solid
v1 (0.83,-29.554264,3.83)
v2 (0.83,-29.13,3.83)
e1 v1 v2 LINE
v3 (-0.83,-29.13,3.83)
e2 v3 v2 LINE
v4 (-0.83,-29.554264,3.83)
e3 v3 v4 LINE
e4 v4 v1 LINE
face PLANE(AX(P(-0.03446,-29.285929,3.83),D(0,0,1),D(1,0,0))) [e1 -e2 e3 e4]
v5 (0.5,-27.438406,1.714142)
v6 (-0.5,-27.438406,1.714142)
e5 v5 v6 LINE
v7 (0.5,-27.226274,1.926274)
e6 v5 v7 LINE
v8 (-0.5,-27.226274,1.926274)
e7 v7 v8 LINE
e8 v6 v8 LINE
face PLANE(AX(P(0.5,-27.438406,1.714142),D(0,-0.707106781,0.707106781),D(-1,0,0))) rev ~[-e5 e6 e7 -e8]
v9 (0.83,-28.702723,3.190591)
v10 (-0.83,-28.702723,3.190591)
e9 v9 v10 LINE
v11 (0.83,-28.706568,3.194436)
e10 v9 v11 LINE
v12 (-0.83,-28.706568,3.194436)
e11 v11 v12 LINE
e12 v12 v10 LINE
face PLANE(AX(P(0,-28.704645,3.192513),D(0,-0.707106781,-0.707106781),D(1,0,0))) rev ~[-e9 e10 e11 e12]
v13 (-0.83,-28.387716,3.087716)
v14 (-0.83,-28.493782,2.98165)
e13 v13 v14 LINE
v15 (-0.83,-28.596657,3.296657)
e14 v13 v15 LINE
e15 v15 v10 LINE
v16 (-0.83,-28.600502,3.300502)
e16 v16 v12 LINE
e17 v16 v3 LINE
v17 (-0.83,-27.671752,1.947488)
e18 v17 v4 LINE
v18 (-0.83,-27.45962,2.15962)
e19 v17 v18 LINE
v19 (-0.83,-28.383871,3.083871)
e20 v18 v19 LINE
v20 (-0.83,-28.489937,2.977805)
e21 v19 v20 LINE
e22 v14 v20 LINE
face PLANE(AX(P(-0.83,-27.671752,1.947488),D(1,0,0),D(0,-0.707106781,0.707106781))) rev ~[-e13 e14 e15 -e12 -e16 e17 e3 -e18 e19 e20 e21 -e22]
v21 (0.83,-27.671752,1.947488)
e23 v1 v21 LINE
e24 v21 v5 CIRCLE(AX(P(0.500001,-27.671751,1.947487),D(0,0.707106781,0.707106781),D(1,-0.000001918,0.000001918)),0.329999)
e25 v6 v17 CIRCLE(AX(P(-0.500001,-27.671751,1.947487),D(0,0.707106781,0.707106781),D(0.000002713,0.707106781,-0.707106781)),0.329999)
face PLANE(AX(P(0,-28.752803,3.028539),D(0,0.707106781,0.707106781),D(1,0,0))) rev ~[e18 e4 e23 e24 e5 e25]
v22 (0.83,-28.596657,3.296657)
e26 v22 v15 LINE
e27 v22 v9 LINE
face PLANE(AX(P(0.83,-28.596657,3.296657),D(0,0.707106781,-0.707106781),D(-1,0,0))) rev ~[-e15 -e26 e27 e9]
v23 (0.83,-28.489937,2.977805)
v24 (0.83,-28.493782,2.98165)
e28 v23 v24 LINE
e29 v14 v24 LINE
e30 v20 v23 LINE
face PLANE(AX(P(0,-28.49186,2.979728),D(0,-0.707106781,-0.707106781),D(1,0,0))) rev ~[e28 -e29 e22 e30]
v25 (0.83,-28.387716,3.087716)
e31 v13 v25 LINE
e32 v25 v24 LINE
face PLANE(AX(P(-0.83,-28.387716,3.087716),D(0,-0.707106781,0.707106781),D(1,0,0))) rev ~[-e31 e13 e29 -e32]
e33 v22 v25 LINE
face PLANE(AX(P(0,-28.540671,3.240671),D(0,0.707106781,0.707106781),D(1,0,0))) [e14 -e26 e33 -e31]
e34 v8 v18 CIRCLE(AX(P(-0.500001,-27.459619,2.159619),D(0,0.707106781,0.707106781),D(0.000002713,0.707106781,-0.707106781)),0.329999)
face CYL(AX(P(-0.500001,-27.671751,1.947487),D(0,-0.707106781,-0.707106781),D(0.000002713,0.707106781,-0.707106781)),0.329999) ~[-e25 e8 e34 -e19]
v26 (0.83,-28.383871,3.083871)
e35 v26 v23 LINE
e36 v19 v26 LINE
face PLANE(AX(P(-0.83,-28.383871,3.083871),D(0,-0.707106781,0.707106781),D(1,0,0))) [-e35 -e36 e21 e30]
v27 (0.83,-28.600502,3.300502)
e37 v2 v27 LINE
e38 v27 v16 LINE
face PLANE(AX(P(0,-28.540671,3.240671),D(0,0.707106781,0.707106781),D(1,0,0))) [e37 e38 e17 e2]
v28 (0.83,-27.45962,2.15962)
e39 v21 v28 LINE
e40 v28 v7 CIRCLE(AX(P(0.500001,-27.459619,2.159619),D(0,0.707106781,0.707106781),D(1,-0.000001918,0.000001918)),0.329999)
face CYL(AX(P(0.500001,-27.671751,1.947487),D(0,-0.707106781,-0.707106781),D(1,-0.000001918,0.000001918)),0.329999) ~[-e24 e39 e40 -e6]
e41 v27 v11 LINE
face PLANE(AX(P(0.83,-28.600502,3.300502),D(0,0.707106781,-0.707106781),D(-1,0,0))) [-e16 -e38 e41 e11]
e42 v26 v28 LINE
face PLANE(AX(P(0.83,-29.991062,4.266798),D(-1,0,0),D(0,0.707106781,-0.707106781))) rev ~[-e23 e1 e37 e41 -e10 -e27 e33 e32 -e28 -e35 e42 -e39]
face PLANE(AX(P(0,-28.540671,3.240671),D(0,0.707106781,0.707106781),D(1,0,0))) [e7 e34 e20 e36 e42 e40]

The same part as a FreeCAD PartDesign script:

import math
import FreeCAD as App
import Part
import Sketcher
from FreeCAD import Vector

doc = App.newDocument("Part")
body = doc.addObject("PartDesign::Body", "Body")

sketch1 = body.newObject("Sketcher::SketchObject", "Sketch")
sketch1.Placement = App.Placement(Vector(0, -12.862132, -12.862132), App.Rotation(Vector(1, 0, 0), Vector(0, 0.707106781, -0.707106781), Vector(0, 0.707106781, 0.707106781), "ZXY"))
sketch1.addGeometry([
    Part.LineSegment(Vector(-0.83, -20.943965, 0), Vector(-0.83, -24.223965, 0)),
    Part.LineSegment(Vector(-0.83, -24.223965, 0), Vector(0.83, -24.223965, 0)),
    Part.LineSegment(Vector(0.83, -24.223965, 0), Vector(0.83, -20.943965, 0)),
    Part.ArcOfCircle(Part.Circle(Vector(0.500001, -20.943964, 0), Vector(0, 0, 1), 0.329999), math.radians(-0.000155), math.radians(90.000155)),
    Part.LineSegment(Vector(0.5, -20.613965, 0), Vector(-0.5, -20.613965, 0)),
    Part.ArcOfCircle(Part.Circle(Vector(-0.500001, -20.943964, 0), Vector(0, 0, 1), 0.329999), math.radians(89.999845), math.radians(180.000155)),
], False)
sketch1.addConstraint([
    Sketcher.Constraint("Coincident", 0, 2, 1, 1),
    Sketcher.Constraint("Coincident", 1, 2, 2, 1),
    Sketcher.Constraint("Coincident", 2, 2, 3, 1),
    Sketcher.Constraint("Coincident", 3, 2, 4, 1),
    Sketcher.Constraint("Coincident", 4, 2, 5, 1),
    Sketcher.Constraint("Coincident", 5, 2, 0, 1),
    Sketcher.Constraint("Vertical", 0),
    Sketcher.Constraint("Horizontal", 1),
    Sketcher.Constraint("Vertical", 2),
    Sketcher.Constraint("Horizontal", 4),
    Sketcher.Constraint("Equal", 3, 5),
    Sketcher.Constraint("Symmetric", 2, 2, 5, 2, -2),
    Sketcher.Constraint("Horizontal", 5, 3, 2, 2),
    Sketcher.Constraint("Vertical", 5, 3, 4, 2),
    Sketcher.Constraint("DistanceX", 4, 2, 4, 1, 1.0),
    Sketcher.Constraint("Radius", 3, 0.329999),
    Sketcher.Constraint("DistanceX", 5, 3, 3, 3, 1.000002),
    Sketcher.Constraint("DistanceY", 0, 2, 0, 1, 3.28),
    Sketcher.Constraint("DistanceY", 3, 3, -1, 1, 20.943964),
])
pad1 = body.newObject("PartDesign::Pad", "Pad")
pad1.Profile = sketch1
pad1.Length = 0.3

sketch2 = body.newObject("Sketcher::SketchObject", "Sketch001")
sketch2.AttachmentSupport = (doc.getObject("XY_Plane"), [""])
sketch2.MapMode = "FlatFace"
sketch2.AttachmentOffset = App.Placement(Vector(0, 0, 5), App.Rotation())
sketch2.addGeometry([
    Part.LineSegment(Vector(-1.806658, -27.873013, 0), Vector(-1.806658, -30.698845, 0)),
    Part.LineSegment(Vector(-1.806658, -30.698845, 0), Vector(1.737738, -30.698845, 0)),
    Part.LineSegment(Vector(1.737738, -30.698845, 0), Vector(1.737738, -27.873013, 0)),
    Part.LineSegment(Vector(1.737738, -27.873013, 0), Vector(-1.806658, -27.873013, 0)),
], False)
sketch2.addConstraint([
    Sketcher.Constraint("Coincident", 0, 2, 1, 1),
    Sketcher.Constraint("Coincident", 1, 2, 2, 1),
    Sketcher.Constraint("Coincident", 2, 2, 3, 1),
    Sketcher.Constraint("Coincident", 3, 2, 0, 1),
    Sketcher.Constraint("Vertical", 0),
    Sketcher.Constraint("Horizontal", 1),
    Sketcher.Constraint("Vertical", 2),
    Sketcher.Constraint("Horizontal", 3),
    Sketcher.Constraint("DistanceY", 0, 2, 0, 1, 2.825832),
    Sketcher.Constraint("DistanceX", 1, 1, 1, 2, 3.544396),
    Sketcher.Constraint("DistanceX", 0, 2, -1, 1, 1.806658),
    Sketcher.Constraint("DistanceY", 0, 2, -1, 1, 30.698845),
])
pocket1 = body.newObject("PartDesign::Pocket", "Pocket")
pocket1.Profile = sketch2
pocket1.Length = 1.17

sketch3 = body.newObject("Sketcher::SketchObject", "Sketch002")
sketch3.Placement = App.Placement(Vector(0, -12.65, -12.65), App.Rotation(Vector(-1, 0, 0), Vector(0, -0.707106781, 0.707106781), Vector(0, 0.707106781, 0.707106781), "ZXY"))
sketch3.addGeometry([
    Part.ArcOfCircle(Part.Circle(Vector(0.83, 22.253773, 0), Vector(0, 0, 1), 0.002719), math.radians(-90), math.radians(90)),
    Part.LineSegment(Vector(0.83, 22.256492, 0), Vector(-0.83, 22.256492, 0)),
    Part.ArcOfCircle(Part.Circle(Vector(-0.83, 22.253773, 0), Vector(0, 0, 1), 0.002719), math.radians(90), math.radians(270)),
    Part.LineSegment(Vector(-0.83, 22.251054, 0), Vector(0.83, 22.251054, 0)),
    Part.ArcOfCircle(Part.Circle(Vector(-0.83, 22.554697, 0), Vector(0, 0, 1), 0.002719), math.radians(90), math.radians(270)),
    Part.LineSegment(Vector(-0.83, 22.551978, 0), Vector(0.83, 22.551978, 0)),
    Part.ArcOfCircle(Part.Circle(Vector(0.83, 22.554697, 0), Vector(0, 0, 1), 0.002719), math.radians(-90), math.radians(90)),
    Part.LineSegment(Vector(0.83, 22.557416, 0), Vector(-0.83, 22.557416, 0)),
], False)
sketch3.addConstraint([
    Sketcher.Constraint("Tangent", 0, 2, 1, 1),
    Sketcher.Constraint("Tangent", 1, 2, 2, 1),
    Sketcher.Constraint("Tangent", 2, 2, 3, 1),
    Sketcher.Constraint("Tangent", 3, 2, 0, 1),
    Sketcher.Constraint("Tangent", 4, 2, 5, 1),
    Sketcher.Constraint("Tangent", 5, 2, 6, 1),
    Sketcher.Constraint("Tangent", 6, 2, 7, 1),
    Sketcher.Constraint("Tangent", 7, 2, 4, 1),
    Sketcher.Constraint("Horizontal", 1),
    Sketcher.Constraint("Horizontal", 3),
    Sketcher.Constraint("Horizontal", 5),
    Sketcher.Constraint("Horizontal", 7),
    Sketcher.Constraint("Equal", 2, 4),
    Sketcher.Constraint("Vertical", 2, 3, 4, 3),
    Sketcher.Constraint("Vertical", 0, 3, 6, 3),
    Sketcher.Constraint("DistanceX", 1, 2, 1, 1, 1.66),
    Sketcher.Constraint("DistanceX", -1, 1, 0, 3, 0.83),
    Sketcher.Constraint("Radius", 0, 0.002719),
    Sketcher.Constraint("DistanceY", -1, 1, 0, 2, 22.256492),
    Sketcher.Constraint("DistanceY", 2, 2, 7, 2, 0.306362),
])
pocket2 = body.newObject("PartDesign::Pocket", "Pocket001")
pocket2.Profile = sketch3
pocket2.Length = 0.15

doc.recompute()
